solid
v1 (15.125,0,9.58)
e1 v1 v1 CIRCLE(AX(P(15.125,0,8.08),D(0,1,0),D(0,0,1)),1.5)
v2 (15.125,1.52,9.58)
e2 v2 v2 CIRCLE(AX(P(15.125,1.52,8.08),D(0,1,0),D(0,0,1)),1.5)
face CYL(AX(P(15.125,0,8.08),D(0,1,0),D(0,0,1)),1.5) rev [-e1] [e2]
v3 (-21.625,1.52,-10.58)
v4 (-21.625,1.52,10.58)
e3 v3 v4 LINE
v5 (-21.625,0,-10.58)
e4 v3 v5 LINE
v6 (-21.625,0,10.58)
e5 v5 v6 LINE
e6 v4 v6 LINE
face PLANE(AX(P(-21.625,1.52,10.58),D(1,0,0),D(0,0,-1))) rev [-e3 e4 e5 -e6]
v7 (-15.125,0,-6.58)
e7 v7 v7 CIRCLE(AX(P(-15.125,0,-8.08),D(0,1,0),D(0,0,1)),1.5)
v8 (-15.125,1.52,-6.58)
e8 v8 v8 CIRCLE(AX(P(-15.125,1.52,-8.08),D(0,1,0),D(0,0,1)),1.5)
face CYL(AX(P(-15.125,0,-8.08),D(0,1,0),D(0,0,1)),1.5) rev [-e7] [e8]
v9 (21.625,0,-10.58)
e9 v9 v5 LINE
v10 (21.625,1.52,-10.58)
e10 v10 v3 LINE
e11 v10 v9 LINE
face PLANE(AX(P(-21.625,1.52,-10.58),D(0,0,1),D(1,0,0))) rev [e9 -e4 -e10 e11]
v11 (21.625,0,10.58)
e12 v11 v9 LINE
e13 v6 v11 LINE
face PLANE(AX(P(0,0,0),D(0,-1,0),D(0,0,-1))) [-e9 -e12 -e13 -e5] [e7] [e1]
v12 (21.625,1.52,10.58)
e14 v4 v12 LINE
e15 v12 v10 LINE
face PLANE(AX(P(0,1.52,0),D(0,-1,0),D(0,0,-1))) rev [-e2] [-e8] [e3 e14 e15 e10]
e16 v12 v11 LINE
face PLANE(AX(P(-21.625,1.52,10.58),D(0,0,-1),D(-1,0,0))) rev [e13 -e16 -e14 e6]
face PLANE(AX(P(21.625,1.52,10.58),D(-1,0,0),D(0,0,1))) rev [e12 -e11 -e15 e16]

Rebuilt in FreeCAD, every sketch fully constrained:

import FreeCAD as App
import Part
import Sketcher
from FreeCAD import Vector
Q = App.Units.Quantity

doc = App.newDocument("Part")
body = doc.addObject("PartDesign::Body", "Body")

# Sketch on XZ plane
sketch1 = body.newObject("Sketcher::SketchObject", "Sketch")
sketch1.AttachmentSupport = (doc.getObject("XZ_Plane"), [""])
sketch1.MapMode = "FlatFace"
sketch1.addGeometry([
    Part.LineSegment(Vector(-22, -11, 0), Vector(-22, 11, 0)),
    Part.LineSegment(Vector(-22, 11, 0), Vector(22, 11, 0)),
    Part.LineSegment(Vector(22, 11, 0), Vector(22, -11, 0)),
    Part.LineSegment(Vector(22, -11, 0), Vector(-22, -11, 0)),
], False)
sketch1.addConstraint([
    Sketcher.Constraint("Coincident", 0, 2, 1, 1),
    Sketcher.Constraint("Coincident", 1, 2, 2, 1),
    Sketcher.Constraint("Coincident", 2, 2, 3, 1),
    Sketcher.Constraint("Coincident", 3, 2, 0, 1),
    Sketcher.Constraint("Vertical", 0),
    Sketcher.Constraint("Horizontal", 1),
    Sketcher.Constraint("Vertical", 2),
    Sketcher.Constraint("Horizontal", 3),
    Sketcher.Constraint("Symmetric", 0, 2, 2, 2, -1, 1),
    Sketcher.Constraint("DistanceX", 1, 1, 1, 2, Q("43.25 mm")),
    Sketcher.Constraint("DistanceY", 0, 1, 0, 2, Q("21.16 mm")),
])
pad1 = body.newObject("PartDesign::Pad", "Pad")
pad1.Profile = sketch1
pad1.Length = 1.52
pad1.Reversed = True

# Sketch on XZ plane
sketch2 = body.newObject("Sketcher::SketchObject", "Sketch001")
sketch2.AttachmentSupport = (doc.getObject("XZ_Plane"), [""])
sketch2.MapMode = "FlatFace"
sketch2.AttachmentOffset = App.Placement(Vector(0, 0, -1.52), App.Rotation())
sketch2.addGeometry([
    Part.Circle(Vector(-15.1, -8.1, 0), Vector(0, 0, 1), 1.5),
    Part.Circle(Vector(15.1, 8.1, 0), Vector(0, 0, 1), 1.5),
], False)
sketch2.addConstraint([
    Sketcher.Constraint("Equal", 0, 1),
    Sketcher.Constraint("Symmetric", 0, 3, 1, 3, -1, 1),
    Sketcher.Constraint("Diameter", 0, Q("3 mm")),
    Sketcher.Constraint("DistanceY", 0, 3, -1, 1, Q("8.08 mm")),
    Sketcher.Constraint("DistanceX", 0, 3, 1, 3, Q("30.25 mm")),
])
pocket1 = body.newObject("PartDesign::Pocket", "Pocket")
pocket1.Profile = sketch2
pocket1.Type = "ThroughAll"
pocket1.Reversed = True

doc.recompute()
